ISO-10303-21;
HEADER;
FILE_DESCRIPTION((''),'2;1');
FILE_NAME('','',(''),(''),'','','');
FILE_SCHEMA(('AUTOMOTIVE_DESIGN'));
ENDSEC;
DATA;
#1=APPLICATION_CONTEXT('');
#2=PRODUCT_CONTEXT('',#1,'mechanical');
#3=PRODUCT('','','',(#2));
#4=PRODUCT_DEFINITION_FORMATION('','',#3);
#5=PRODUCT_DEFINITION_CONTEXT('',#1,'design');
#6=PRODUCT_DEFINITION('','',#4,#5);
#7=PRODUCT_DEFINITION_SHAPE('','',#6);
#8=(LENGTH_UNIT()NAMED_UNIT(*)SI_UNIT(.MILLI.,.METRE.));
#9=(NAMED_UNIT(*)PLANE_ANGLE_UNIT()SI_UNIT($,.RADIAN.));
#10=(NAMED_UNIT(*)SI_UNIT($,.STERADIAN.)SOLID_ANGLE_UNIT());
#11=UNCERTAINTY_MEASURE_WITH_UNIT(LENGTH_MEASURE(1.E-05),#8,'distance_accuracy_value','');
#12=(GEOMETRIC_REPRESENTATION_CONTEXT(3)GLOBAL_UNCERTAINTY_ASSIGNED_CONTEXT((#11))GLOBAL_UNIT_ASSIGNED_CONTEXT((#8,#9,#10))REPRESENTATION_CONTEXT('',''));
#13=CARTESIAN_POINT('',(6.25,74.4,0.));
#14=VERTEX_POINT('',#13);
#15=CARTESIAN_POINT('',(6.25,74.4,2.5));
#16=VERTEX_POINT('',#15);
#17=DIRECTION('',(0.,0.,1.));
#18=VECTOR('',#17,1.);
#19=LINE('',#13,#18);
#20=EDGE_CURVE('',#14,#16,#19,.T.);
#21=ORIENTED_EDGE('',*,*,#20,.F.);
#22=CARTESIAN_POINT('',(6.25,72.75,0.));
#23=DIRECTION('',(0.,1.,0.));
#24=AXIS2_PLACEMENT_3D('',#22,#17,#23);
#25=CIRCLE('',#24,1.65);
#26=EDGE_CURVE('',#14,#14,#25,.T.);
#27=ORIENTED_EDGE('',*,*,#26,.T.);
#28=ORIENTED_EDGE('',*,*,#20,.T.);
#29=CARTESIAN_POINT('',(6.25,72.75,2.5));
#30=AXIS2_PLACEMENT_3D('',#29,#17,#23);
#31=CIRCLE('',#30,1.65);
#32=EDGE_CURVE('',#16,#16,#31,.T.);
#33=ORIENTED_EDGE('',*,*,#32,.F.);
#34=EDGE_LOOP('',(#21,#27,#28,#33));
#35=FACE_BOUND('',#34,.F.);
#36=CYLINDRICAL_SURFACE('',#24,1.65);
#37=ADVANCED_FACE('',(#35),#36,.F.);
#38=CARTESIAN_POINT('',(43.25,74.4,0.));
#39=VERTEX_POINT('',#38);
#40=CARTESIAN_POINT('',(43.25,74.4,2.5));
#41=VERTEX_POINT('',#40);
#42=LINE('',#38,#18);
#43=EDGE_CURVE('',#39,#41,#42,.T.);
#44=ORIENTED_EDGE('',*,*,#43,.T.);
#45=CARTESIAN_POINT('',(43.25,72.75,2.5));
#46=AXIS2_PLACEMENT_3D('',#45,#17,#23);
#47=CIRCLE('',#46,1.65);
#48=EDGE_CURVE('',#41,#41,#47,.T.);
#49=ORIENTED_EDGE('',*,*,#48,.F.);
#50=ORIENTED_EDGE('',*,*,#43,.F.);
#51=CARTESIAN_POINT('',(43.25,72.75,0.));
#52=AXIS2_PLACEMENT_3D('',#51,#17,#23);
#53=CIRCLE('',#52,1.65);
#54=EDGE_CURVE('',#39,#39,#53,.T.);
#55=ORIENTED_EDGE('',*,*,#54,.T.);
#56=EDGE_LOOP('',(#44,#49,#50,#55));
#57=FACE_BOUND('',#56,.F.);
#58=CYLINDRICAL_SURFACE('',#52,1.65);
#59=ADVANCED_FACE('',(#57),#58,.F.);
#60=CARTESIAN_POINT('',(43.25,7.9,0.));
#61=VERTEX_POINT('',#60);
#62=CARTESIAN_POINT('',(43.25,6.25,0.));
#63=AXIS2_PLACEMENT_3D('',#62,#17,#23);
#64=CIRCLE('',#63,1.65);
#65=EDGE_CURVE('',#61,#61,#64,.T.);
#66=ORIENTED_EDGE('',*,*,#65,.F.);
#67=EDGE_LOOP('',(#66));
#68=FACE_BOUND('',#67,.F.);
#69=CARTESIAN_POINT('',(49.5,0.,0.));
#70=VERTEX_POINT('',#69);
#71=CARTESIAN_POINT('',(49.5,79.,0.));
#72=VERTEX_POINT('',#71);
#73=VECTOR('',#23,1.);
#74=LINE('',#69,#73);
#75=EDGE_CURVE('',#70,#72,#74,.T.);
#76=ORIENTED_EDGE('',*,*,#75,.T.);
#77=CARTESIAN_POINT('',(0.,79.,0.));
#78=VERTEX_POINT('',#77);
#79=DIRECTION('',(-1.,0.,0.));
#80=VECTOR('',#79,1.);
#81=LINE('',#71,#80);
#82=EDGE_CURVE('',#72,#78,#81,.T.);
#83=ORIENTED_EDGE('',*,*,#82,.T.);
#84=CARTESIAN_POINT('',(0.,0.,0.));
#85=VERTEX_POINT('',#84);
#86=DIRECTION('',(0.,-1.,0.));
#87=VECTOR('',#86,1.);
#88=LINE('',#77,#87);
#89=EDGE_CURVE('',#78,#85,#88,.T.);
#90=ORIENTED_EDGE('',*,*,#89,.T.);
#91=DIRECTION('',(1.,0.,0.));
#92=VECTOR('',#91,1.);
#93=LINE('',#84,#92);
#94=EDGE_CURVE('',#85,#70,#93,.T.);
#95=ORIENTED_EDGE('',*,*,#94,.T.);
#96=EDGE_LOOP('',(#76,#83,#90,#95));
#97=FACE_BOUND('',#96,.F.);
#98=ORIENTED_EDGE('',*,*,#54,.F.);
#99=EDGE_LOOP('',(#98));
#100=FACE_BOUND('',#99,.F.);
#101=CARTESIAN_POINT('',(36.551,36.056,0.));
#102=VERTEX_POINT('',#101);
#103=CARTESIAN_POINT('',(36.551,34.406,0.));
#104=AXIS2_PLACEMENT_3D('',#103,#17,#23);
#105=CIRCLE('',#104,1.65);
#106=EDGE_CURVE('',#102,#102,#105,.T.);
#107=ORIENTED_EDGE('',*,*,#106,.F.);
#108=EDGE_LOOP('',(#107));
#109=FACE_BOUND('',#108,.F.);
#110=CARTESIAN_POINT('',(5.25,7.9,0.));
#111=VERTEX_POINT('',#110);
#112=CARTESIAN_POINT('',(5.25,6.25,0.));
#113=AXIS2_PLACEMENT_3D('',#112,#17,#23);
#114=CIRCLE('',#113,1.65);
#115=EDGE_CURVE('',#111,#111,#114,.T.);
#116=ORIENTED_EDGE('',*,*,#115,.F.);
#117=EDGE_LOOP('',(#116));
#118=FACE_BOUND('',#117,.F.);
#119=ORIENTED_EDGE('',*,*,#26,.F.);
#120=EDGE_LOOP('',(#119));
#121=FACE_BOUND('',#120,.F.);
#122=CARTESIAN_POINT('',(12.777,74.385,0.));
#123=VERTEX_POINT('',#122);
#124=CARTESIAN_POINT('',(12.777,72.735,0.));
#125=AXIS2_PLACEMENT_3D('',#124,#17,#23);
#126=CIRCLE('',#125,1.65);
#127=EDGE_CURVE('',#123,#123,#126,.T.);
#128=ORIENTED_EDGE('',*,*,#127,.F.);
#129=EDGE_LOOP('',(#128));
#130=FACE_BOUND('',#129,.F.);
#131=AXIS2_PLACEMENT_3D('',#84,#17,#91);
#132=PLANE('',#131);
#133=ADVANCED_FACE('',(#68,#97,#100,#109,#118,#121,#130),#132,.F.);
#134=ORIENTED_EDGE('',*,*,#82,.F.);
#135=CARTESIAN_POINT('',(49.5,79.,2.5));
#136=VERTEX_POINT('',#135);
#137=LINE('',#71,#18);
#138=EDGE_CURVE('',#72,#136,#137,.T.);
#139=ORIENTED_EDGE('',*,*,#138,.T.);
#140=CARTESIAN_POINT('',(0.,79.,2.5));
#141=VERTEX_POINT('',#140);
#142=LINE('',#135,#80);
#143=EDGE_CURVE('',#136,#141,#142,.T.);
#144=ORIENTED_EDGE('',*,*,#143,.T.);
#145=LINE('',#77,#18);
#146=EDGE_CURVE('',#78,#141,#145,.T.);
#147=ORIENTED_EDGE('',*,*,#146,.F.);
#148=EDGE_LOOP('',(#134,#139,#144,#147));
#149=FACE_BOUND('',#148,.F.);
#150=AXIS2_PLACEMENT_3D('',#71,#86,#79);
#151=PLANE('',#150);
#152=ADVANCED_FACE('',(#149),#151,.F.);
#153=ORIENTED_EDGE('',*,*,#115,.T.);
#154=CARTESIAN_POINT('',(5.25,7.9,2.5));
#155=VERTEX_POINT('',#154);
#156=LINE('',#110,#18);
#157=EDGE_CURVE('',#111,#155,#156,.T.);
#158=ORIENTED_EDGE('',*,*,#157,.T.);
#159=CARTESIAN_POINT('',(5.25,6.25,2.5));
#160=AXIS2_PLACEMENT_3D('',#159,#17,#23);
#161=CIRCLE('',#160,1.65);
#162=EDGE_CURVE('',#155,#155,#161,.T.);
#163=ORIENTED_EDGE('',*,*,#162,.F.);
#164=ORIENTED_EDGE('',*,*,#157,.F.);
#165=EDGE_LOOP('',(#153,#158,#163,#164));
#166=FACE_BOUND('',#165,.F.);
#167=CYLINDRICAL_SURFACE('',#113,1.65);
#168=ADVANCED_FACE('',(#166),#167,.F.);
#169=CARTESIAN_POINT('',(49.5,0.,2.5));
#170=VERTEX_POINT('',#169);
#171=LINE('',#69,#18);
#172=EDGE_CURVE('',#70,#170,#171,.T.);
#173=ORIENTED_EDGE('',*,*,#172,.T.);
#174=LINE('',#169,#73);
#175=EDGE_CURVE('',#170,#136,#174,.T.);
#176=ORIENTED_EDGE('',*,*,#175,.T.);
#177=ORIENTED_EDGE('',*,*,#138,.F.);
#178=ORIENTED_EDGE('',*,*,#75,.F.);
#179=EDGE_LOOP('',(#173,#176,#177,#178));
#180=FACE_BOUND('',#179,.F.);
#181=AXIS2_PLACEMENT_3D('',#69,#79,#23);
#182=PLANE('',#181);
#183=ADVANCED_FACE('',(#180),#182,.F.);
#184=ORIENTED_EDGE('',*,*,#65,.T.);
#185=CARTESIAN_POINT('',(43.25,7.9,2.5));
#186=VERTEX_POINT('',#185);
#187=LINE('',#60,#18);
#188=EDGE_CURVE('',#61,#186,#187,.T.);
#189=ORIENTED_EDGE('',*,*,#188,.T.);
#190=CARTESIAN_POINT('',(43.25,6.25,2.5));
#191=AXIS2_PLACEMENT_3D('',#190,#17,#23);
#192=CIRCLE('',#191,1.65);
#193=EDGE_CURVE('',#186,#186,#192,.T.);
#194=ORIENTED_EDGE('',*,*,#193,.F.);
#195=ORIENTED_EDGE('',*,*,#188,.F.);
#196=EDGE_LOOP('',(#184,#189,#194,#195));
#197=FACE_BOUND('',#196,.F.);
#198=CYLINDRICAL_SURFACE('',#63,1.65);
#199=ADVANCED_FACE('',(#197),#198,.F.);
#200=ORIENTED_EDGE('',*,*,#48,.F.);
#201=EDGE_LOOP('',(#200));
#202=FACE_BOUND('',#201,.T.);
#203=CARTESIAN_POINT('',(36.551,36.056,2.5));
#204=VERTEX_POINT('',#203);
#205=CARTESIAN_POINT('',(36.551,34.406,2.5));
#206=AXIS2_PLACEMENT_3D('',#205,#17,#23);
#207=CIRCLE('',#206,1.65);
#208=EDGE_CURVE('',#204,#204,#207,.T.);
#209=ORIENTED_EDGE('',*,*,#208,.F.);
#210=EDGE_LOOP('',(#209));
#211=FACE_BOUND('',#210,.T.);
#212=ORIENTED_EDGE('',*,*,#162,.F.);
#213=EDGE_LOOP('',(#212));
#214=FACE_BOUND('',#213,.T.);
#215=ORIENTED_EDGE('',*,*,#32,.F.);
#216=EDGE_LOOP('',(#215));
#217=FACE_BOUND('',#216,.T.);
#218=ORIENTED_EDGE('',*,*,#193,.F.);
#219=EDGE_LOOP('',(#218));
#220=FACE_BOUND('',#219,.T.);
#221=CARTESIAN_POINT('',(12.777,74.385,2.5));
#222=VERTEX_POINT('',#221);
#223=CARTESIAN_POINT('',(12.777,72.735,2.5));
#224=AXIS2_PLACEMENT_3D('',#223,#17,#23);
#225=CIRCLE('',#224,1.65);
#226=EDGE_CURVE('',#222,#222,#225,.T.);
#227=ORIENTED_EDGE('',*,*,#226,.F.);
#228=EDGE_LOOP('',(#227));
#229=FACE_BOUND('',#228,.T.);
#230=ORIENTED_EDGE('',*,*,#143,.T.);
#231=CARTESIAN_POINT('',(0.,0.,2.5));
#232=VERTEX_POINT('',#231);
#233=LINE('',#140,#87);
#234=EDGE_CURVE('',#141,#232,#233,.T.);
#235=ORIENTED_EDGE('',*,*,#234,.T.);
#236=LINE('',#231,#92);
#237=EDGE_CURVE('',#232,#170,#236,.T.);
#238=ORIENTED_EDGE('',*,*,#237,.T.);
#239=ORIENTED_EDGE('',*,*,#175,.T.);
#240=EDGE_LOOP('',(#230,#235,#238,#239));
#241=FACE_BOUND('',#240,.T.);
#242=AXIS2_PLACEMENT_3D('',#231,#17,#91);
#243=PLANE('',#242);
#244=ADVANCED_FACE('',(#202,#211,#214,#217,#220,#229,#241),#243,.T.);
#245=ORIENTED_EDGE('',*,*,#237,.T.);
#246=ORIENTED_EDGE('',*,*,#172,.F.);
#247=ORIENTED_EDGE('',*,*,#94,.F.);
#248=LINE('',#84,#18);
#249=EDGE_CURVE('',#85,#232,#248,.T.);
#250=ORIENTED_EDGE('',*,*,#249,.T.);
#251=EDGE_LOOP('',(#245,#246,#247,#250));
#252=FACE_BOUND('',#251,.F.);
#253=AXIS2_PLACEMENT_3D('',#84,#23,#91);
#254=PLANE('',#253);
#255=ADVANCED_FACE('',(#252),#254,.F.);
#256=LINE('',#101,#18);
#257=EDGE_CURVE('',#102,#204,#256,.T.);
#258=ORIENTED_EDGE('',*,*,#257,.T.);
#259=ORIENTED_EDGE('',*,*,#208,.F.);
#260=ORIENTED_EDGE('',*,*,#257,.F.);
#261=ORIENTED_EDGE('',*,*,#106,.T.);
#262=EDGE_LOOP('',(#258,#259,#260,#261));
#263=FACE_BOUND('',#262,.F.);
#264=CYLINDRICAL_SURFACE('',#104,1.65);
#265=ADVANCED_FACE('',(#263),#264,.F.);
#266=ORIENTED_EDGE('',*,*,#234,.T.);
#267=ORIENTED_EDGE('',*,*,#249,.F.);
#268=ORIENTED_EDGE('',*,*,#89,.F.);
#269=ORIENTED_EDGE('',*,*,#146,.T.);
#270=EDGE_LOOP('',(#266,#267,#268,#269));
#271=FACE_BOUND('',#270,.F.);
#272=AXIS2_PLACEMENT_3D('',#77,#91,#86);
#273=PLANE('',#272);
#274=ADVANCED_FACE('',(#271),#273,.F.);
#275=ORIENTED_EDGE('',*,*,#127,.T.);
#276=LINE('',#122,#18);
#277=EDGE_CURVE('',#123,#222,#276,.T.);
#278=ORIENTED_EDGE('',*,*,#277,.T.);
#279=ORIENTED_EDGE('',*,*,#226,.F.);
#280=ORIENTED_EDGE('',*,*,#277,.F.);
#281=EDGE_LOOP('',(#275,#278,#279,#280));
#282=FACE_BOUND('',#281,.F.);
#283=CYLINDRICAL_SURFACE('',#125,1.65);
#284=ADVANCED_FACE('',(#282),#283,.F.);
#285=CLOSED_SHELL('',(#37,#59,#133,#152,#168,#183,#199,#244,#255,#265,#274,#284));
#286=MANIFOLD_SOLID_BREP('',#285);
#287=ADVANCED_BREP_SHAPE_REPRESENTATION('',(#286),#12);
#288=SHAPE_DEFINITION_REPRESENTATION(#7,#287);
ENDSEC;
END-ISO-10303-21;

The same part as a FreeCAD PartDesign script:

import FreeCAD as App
import Part
import Sketcher
from FreeCAD import Vector

doc = App.newDocument("Part")
body = doc.addObject("PartDesign::Body", "Body")

sketch1 = doc.addObject("Sketcher::SketchObject", "Sketch")
body.addObject(sketch1)
sketch1.AttachmentSupport = (doc.XY_Plane, [""])
sketch1.MapMode = "FlatFace"
sketch1.addGeometry(Part.LineSegment(Vector(0, 79, 0), Vector(0, 0, 0)), False)
sketch1.addGeometry(Part.LineSegment(Vector(0, 0, 0), Vector(49.5, 0, 0)), False)
sketch1.addGeometry(Part.LineSegment(Vector(49.5, 0, 0), Vector(49.5, 79, 0)), False)
sketch1.addGeometry(Part.LineSegment(Vector(49.5, 79, 0), Vector(0, 79, 0)), False)
sketch1.addConstraint(Sketcher.Constraint("Coincident", 0, 2, 1, 1))
sketch1.addConstraint(Sketcher.Constraint("Coincident", 1, 2, 2, 1))
sketch1.addConstraint(Sketcher.Constraint("Coincident", 2, 2, 3, 1))
sketch1.addConstraint(Sketcher.Constraint("Coincident", 3, 2, 0, 1))
sketch1.addConstraint(Sketcher.Constraint("Vertical", 0))
sketch1.addConstraint(Sketcher.Constraint("Horizontal", 1))
sketch1.addConstraint(Sketcher.Constraint("Vertical", 2))
sketch1.addConstraint(Sketcher.Constraint("Horizontal", 3))
sketch1.addConstraint(Sketcher.Constraint("Coincident", 0, 2, -1, 1))
sketch1.addConstraint(Sketcher.Constraint("DistanceY", 0, 2, 0, 1, 79.0))
sketch1.addConstraint(Sketcher.Constraint("DistanceX", 1, 1, 1, 2, 49.5))
pad1 = doc.addObject("PartDesign::Pad", "Pad")
body.addObject(pad1)
pad1.Profile = sketch1
pad1.Length = 2.5

sketch2 = doc.addObject("Sketcher::SketchObject", "Sketch001")
body.addObject(sketch2)
sketch2.AttachmentSupport = (doc.XY_Plane, [""])
sketch2.MapMode = "FlatFace"
sketch2.addGeometry(Part.Circle(Vector(12.777, 72.735, 0), Vector(0, 0, 1), 1.65), False)
sketch2.addGeometry(Part.Circle(Vector(36.551, 34.406, 0), Vector(0, 0, 1), 1.65), False)
sketch2.addConstraint(Sketcher.Constraint("Equal", 0, 1))
sketch2.addConstraint(Sketcher.Constraint("Diameter", 0, 3.3))
sketch2.addConstraint(Sketcher.Constraint("DistanceX", -1, 1, 0, 3, 12.777))
sketch2.addConstraint(Sketcher.Constraint("DistanceY", -1, 1, 0, 3, 72.735))
sketch2.addConstraint(Sketcher.Constraint("DistanceX", -1, 1, 1, 3, 36.551))
sketch2.addConstraint(Sketcher.Constraint("DistanceY", -1, 1, 1, 3, 34.406))
doc.recompute()
hole = doc.addObject("PartDesign::Hole", "Hole")
body.addObject(hole)
hole.Profile = sketch2
hole.ThreadType = "None"
hole.Diameter = 3.3
hole.DepthType = "ThroughAll"
hole.Reversed = True

sketch3 = doc.addObject("Sketcher::SketchObject", "Sketch002")
body.addObject(sketch3)
sketch3.AttachmentSupport = (doc.XY_Plane, [""])
sketch3.MapMode = "FlatFace"
sketch3.addGeometry(Part.Circle(Vector(5.25, 6.25, 0), Vector(0, 0, 1), 1.65), False)
sketch3.addGeometry(Part.Circle(Vector(43.25, 6.25, 0), Vector(0, 0, 1), 1.65), False)
sketch3.addGeometry(Part.Circle(Vector(43.25, 72.75, 0), Vector(0, 0, 1), 1.65), False)
sketch3.addGeometry(Part.Circle(Vector(6.25, 72.75, 0), Vector(0, 0, 1), 1.65), False)
sketch3.addConstraint(Sketcher.Constraint("Equal", 0, 1))
sketch3.addConstraint(Sketcher.Constraint("Equal", 1, 2))
sketch3.addConstraint(Sketcher.Constraint("Equal", 2, 3))
sketch3.addConstraint(Sketcher.Constraint("Horizontal", 0, 3, 1, 3))
sketch3.addConstraint(Sketcher.Constraint("Horizontal", 2, 3, 3, 3))
sketch3.addConstraint(Sketcher.Constraint("Vertical", 1, 3, 2, 3))
sketch3.addConstraint(Sketcher.Constraint("Diameter", 0, 3.3))
sketch3.addConstraint(Sketcher.Constraint("DistanceX", 0, 3, 1, 3, 38.0))
sketch3.addConstraint(Sketcher.Constraint("DistanceX", 3, 3, 2, 3, 37.0))
sketch3.addConstraint(Sketcher.Constraint("DistanceY", 1, 3, 2, 3, 66.5))
sketch3.addConstraint(Sketcher.Constraint("DistanceX", -1, 1, 0, 3, 5.25))
sketch3.addConstraint(Sketcher.Constraint("DistanceY", -1, 1, 0, 3, 6.25))
doc.recompute()
hole2 = doc.addObject("PartDesign::Hole", "Hole001")
body.addObject(hole2)
hole2.Profile = sketch3
hole2.ThreadType = "None"
hole2.Diameter = 3.3
hole2.DepthType = "ThroughAll"
hole2.Reversed = True

doc.recompute()
